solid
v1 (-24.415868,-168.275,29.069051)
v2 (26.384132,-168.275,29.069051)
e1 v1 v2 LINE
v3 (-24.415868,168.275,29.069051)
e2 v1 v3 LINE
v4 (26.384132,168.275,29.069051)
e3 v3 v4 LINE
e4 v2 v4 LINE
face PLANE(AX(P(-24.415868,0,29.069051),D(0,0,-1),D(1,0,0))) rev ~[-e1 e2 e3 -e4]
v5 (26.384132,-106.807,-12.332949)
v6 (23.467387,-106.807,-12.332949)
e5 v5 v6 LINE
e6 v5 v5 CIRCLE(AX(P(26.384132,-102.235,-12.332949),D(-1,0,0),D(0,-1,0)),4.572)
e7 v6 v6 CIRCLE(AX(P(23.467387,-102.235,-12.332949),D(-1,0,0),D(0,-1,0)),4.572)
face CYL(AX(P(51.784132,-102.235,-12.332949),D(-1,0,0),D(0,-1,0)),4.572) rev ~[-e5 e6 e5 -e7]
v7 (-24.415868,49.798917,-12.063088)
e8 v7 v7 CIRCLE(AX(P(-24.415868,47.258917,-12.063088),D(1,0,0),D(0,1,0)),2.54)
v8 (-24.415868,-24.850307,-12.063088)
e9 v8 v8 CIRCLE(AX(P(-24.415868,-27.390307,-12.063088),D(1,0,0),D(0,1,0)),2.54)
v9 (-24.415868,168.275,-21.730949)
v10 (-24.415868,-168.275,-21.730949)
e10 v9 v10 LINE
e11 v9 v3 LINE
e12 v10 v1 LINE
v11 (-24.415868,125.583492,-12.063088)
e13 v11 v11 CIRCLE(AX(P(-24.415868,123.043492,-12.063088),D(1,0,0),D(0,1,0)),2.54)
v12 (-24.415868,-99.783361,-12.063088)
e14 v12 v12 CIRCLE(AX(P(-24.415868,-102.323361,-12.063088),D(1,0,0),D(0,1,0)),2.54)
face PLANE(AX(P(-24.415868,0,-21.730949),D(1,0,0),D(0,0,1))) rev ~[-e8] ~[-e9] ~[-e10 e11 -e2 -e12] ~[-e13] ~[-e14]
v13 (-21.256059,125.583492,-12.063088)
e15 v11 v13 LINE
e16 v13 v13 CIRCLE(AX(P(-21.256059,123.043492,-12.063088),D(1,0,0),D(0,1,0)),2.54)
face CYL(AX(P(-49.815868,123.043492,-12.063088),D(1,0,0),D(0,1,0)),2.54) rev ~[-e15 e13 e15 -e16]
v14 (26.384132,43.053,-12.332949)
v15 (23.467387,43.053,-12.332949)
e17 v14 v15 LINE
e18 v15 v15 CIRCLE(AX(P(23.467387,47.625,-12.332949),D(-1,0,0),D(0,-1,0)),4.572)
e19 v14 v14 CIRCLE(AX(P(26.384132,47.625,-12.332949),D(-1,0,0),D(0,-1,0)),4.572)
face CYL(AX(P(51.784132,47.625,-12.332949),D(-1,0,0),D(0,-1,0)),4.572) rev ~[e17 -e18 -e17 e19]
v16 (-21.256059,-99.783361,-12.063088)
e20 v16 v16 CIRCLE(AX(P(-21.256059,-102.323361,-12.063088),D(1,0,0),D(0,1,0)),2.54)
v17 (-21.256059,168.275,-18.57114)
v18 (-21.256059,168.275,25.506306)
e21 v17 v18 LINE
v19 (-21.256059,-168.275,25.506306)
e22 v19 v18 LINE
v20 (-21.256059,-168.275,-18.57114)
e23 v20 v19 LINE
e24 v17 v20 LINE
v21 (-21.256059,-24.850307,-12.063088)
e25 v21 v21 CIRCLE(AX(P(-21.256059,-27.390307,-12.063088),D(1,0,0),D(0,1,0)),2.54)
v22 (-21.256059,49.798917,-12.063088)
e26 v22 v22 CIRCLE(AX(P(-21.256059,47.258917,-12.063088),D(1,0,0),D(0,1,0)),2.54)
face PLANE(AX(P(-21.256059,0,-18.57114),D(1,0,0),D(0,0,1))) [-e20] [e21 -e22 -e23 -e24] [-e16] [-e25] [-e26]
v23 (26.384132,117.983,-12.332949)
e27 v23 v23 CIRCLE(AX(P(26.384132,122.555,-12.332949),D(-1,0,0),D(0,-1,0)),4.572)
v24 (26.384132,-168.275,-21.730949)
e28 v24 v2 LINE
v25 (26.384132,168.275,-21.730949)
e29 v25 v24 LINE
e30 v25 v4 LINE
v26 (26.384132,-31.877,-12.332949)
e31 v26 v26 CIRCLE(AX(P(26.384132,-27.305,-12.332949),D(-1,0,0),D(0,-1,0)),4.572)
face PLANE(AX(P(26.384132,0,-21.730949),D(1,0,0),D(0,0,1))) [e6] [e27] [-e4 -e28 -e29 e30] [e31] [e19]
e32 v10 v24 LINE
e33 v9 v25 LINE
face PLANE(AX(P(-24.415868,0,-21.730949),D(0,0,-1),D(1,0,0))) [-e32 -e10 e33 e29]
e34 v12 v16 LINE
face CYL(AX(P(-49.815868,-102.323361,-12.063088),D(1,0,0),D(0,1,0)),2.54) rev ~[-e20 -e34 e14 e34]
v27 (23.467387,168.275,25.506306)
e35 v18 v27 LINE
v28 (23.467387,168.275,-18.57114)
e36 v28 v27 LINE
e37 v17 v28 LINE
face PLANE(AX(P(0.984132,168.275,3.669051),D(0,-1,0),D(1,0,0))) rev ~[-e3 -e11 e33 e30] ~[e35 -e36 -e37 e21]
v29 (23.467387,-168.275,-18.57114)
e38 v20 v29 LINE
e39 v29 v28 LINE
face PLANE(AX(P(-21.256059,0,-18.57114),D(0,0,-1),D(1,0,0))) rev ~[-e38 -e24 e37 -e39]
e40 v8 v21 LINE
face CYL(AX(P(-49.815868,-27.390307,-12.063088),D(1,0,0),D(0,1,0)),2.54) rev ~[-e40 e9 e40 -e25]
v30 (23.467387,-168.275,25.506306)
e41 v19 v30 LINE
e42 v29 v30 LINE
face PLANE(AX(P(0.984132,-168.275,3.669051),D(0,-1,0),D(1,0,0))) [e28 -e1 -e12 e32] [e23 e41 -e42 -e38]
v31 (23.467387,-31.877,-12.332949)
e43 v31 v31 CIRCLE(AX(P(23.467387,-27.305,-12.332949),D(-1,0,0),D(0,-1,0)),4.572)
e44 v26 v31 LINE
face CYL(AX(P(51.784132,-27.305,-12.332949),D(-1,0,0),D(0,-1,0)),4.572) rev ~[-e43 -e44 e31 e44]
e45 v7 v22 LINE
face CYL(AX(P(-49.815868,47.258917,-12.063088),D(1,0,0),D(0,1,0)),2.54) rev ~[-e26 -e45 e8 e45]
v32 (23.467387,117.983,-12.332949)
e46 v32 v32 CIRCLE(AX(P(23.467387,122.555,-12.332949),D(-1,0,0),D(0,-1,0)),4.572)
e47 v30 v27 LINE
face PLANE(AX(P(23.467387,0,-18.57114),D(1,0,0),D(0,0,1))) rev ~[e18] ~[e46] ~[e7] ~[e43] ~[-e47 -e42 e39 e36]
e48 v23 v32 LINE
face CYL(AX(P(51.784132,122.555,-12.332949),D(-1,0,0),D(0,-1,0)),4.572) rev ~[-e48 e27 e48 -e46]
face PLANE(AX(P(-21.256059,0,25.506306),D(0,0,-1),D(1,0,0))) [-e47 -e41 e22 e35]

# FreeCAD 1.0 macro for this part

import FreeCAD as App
import Part
import Sketcher

V = App.Vector
Q = App.Units.Quantity


def add_polygon(sketch, points):
    """Adds a closed chain of lines whose ends are joined by coincident constraints."""
    first, n = sketch.GeometryCount, len(points)
    for a, b in zip(points, points[1:] + points[:1]):
        sketch.addGeometry(Part.LineSegment(App.Vector(*a, 0), App.Vector(*b, 0)), False)
    for i in range(n):
        sketch.addConstraint(Sketcher.Constraint("Coincident", first + i, 2, first + (i + 1) % n, 1))

doc = App.newDocument("Part")
body = doc.addObject("PartDesign::Body", "Body")

sketch1 = body.newObject("Sketcher::SketchObject", "Sketch")
sketch1.AttachmentSupport = (doc.getObject("XZ_Plane"), [""])
sketch1.MapMode = "FlatFace"
add_polygon(sketch1, [(-24, 29), (-24, -22), (26, -22), (26, 29)])
add_polygon(sketch1, [(23, -19), (-21, -19), (-21, 26), (23, 26)])
sketch1.addConstraint([
    Sketcher.Constraint("Vertical", 0),
    Sketcher.Constraint("Horizontal", 1),
    Sketcher.Constraint("Vertical", 2),
    Sketcher.Constraint("Horizontal", 3),
    Sketcher.Constraint("Horizontal", 4),
    Sketcher.Constraint("Vertical", 5),
    Sketcher.Constraint("Horizontal", 6),
    Sketcher.Constraint("Vertical", 7),
    Sketcher.Constraint("Equal", 3, 0),
    Sketcher.Constraint("DistanceX", 1, 1, 1, 2, Q("2 in")),
    Sketcher.Constraint("DistanceX", 4, 2, 4, 1, 44.723446),
    Sketcher.Constraint("DistanceY", 5, 1, 5, 2, 44.077446),
    Sketcher.Constraint("DistanceY", 0, 2, -1, 1, 21.730949),
    Sketcher.Constraint("DistanceX", 4, 2, -1, 1, 21.256059),
    Sketcher.Constraint("DistanceY", 4, 2, -1, 1, 18.57114),
    Sketcher.Constraint("DistanceX", 0, 2, 4, 2, 3.159809),
])
pad1 = body.newObject("PartDesign::Pad", "Pad")
pad1.Profile = sketch1
pad1.Length = Q("13.25 in")
pad1.Midplane = True

sketch2 = body.newObject("Sketcher::SketchObject", "Sketch001")
sketch2.AttachmentSupport = (doc.getObject("YZ_Plane"), [""])
sketch2.MapMode = "FlatFace"
sketch2.AttachmentOffset = App.Placement(V(0, 0, 26.384132), App.Rotation())
sketch2.addGeometry([
    Part.Circle(V(-102.2, -12.3, 0), V(0, 0, 1), 4.6),
    Part.Circle(V(-27.3, -12.3, 0), V(0, 0, 1), 4.6),
    Part.Circle(V(47.6, -12.3, 0), V(0, 0, 1), 4.6),
    Part.Circle(V(122.6, -12.3, 0), V(0, 0, 1), 4.6),
], False)
sketch2.addConstraint([
    Sketcher.Constraint("Equal", 0, 1),
    Sketcher.Constraint("Equal", 1, 2),
    Sketcher.Constraint("Equal", 2, 3),
    Sketcher.Constraint("Horizontal", 0, 3, 1, 3),
    Sketcher.Constraint("Horizontal", 1, 3, 2, 3),
    Sketcher.Constraint("Horizontal", 2, 3, 3, 3),
    Sketcher.Constraint("Diameter", 0, Q("0.36 in")),
    Sketcher.Constraint("DistanceX", 0, 3, 2, 3, Q("5.9 in")),
    Sketcher.Constraint("DistanceX", 1, 3, 3, 3, Q("5.9 in")),
    Sketcher.Constraint("DistanceX", 0, 3, 1, 3, Q("2.95 in")),
    Sketcher.Constraint("DistanceX", 0, 3, -1, 1, Q("4.025 in")),
    Sketcher.Constraint("DistanceY", 0, 3, -1, 1, 12.332949),
])
doc.recompute()
hole = body.newObject("PartDesign::Hole", "Hole")
hole.Profile = sketch2
hole.ThreadType = "None"
hole.Diameter = Q("0.36 in")
hole.DepthType = "Dimension"
hole.Depth = Q("1 in")
hole.DrillPoint = "Angled"
hole.DrillPointAngle = 118

sketch3 = body.newObject("Sketcher::SketchObject", "Sketch002")
sketch3.AttachmentSupport = (doc.getObject("YZ_Plane"), [""])
sketch3.MapMode = "FlatFace"
sketch3.AttachmentOffset = App.Placement(V(0, 0, -24.415868), App.Rotation())
sketch3.addGeometry([
    Part.Circle(V(123, -12.1, 0), V(0, 0, 1), 2.5),
    Part.Circle(V(47.3, -12.1, 0), V(0, 0, 1), 2.5),
    Part.Circle(V(-27.4, -12.1, 0), V(0, 0, 1), 2.5),
    Part.Circle(V(-102.3, -12.1, 0), V(0, 0, 1), 2.5),
], False)
sketch3.addConstraint([
    Sketcher.Constraint("Equal", 0, 1),
    Sketcher.Constraint("Equal", 1, 2),
    Sketcher.Constraint("Equal", 2, 3),
    Sketcher.Constraint("Horizontal", 0, 3, 1, 3),
    Sketcher.Constraint("Horizontal", 1, 3, 2, 3),
    Sketcher.Constraint("Horizontal", 2, 3, 3, 3),
    Sketcher.Constraint("Diameter", 0, Q("0.2 in")),
    Sketcher.Constraint("DistanceX", 2, 3, 0, 3, 150.433799),
    Sketcher.Constraint("DistanceX", 3, 3, -1, 1, 102.323361),
    Sketcher.Constraint("DistanceX", -1, 1, 0, 3, 123.043492),
    Sketcher.Constraint("DistanceY", 0, 3, -1, 1, 12.063088),
    Sketcher.Constraint("DistanceX", -1, 1, 1, 3, 47.258917),
])
doc.recompute()
hole2 = body.newObject("PartDesign::Hole", "Hole001")
hole2.Profile = sketch3
hole2.ThreadType = "None"
hole2.Diameter = Q("0.2 in")
hole2.DepthType = "Dimension"
hole2.Depth = Q("1 in")
hole2.DrillPoint = "Angled"
hole2.DrillPointAngle = 118
hole2.Reversed = True

doc.recompute()
